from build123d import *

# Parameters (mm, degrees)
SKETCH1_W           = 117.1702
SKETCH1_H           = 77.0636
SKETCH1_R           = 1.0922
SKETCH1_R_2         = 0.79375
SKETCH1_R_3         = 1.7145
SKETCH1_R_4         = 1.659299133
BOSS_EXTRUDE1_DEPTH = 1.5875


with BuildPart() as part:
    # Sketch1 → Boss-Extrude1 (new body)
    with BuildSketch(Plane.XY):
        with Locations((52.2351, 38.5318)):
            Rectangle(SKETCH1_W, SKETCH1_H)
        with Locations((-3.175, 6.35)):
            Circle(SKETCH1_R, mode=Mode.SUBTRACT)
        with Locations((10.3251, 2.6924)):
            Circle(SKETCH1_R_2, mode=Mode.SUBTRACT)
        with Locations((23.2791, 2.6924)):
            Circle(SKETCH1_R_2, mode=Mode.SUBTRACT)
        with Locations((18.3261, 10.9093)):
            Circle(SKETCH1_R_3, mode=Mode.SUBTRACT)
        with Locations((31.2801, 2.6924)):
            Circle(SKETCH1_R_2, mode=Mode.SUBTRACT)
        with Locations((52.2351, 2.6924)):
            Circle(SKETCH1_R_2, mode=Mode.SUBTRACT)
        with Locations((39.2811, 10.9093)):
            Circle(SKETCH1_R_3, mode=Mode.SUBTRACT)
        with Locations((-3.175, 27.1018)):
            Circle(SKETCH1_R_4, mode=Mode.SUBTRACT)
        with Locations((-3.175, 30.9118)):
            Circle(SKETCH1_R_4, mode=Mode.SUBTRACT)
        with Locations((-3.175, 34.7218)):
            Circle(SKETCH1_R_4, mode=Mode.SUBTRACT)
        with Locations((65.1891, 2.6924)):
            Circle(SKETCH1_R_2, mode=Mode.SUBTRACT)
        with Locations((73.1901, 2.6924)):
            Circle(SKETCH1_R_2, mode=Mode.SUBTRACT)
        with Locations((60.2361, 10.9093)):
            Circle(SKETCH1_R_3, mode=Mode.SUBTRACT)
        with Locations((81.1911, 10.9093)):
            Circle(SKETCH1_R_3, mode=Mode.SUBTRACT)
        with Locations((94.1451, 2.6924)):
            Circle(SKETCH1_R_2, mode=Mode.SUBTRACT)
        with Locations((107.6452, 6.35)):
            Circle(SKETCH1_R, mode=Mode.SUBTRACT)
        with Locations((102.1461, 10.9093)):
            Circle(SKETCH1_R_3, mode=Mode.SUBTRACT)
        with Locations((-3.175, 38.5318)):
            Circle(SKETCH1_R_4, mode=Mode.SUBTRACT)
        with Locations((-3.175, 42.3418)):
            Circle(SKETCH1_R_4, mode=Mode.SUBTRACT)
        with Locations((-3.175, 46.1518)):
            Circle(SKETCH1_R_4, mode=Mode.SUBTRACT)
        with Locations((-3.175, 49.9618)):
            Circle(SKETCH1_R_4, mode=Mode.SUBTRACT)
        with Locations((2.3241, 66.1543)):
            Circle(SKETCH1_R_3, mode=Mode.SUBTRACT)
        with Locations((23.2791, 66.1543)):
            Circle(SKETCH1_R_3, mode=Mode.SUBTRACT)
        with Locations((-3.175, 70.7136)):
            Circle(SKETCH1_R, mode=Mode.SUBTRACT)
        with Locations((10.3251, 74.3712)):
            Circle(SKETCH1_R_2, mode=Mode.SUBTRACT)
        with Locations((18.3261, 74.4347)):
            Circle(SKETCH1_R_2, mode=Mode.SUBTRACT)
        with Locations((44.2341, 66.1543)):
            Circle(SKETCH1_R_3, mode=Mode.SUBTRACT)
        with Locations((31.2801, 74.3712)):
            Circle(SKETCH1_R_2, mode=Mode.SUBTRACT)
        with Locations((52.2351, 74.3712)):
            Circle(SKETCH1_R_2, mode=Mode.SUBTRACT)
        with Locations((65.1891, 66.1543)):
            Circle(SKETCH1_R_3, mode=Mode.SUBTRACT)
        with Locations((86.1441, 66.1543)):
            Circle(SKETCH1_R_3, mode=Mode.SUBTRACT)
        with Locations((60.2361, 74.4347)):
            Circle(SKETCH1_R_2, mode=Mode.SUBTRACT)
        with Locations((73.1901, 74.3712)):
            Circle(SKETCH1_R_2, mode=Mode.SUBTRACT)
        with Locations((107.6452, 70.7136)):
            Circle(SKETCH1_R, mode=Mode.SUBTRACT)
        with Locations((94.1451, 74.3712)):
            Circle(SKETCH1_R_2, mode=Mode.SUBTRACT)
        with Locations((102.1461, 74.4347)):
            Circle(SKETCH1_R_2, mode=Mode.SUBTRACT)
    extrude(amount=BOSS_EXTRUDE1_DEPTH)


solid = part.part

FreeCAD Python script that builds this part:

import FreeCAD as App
import Part
import Sketcher
from FreeCAD import Vector
Q = App.Units.Quantity


def add_polygon(sketch, points):
    """Adds a closed chain of lines whose ends are joined by coincident constraints."""
    first, n = sketch.GeometryCount, len(points)
    for a, b in zip(points, points[1:] + points[:1]):
        sketch.addGeometry(Part.LineSegment(App.Vector(*a, 0), App.Vector(*b, 0)), False)
    for i in range(n):
        sketch.addConstraint(Sketcher.Constraint("Coincident", first + i, 2, first + (i + 1) % n, 1))

doc = App.newDocument("Part")
body = doc.addObject("PartDesign::Body", "Body")

# Sketch on XY plane
sketch1 = body.newObject("Sketcher::SketchObject", "Sketch")
sketch1.AttachmentSupport = (doc.getObject("XY_Plane"), [""])
sketch1.MapMode = "FlatFace"
add_polygon(sketch1, [(-6.3, 77.1), (-6.3, 0), (110.8, 0), (110.8, 77.1)])  # lines 0-3
sketch1.addGeometry(Part.Circle(Vector(-3.2, 6.3, 0), Vector(0, 0, 1), 1.1), False)  # 4
sketch1.addGeometry(Part.Circle(Vector(10.3, 2.7, 0), Vector(0, 0, 1), 0.8), False)  # 5
sketch1.addGeometry(Part.Circle(Vector(23.3, 2.7, 0), Vector(0, 0, 1), 0.8), False)  # 6
sketch1.addGeometry(Part.Circle(Vector(18.3, 10.9, 0), Vector(0, 0, 1), 1.7), False)  # 7
sketch1.addGeometry(Part.Circle(Vector(31.3, 2.7, 0), Vector(0, 0, 1), 0.8), False)  # 8
sketch1.addGeometry(Part.Circle(Vector(39.3, 10.9, 0), Vector(0, 0, 1), 1.7), False)  # 9
sketch1.addGeometry(Part.Circle(Vector(-3.2, 27.1, 0), Vector(0, 0, 1), 1.7), False)  # 10
sketch1.addGeometry(Part.Circle(Vector(-3.2, 30.9, 0), Vector(0, 0, 1), 1.7), False)  # 11
sketch1.addGeometry(Part.Circle(Vector(-3.2, 34.7, 0), Vector(0, 0, 1), 1.7), False)  # 12
sketch1.addGeometry(Part.Circle(Vector(-3.2, 38.5, 0), Vector(0, 0, 1), 1.7), False)  # 13
sketch1.addGeometry(Part.Circle(Vector(52.2, 2.7, 0), Vector(0, 0, 1), 0.8), False)  # 14
sketch1.addGeometry(Part.Circle(Vector(65.2, 2.7, 0), Vector(0, 0, 1), 0.8), False)  # 15
sketch1.addGeometry(Part.Circle(Vector(60.2, 10.9, 0), Vector(0, 0, 1), 1.7), False)  # 16
sketch1.addGeometry(Part.Circle(Vector(73.2, 2.7, 0), Vector(0, 0, 1), 0.8), False)  # 17
sketch1.addGeometry(Part.Circle(Vector(94.1, 2.7, 0), Vector(0, 0, 1), 0.8), False)  # 18
sketch1.addGeometry(Part.Circle(Vector(81.2, 10.9, 0), Vector(0, 0, 1), 1.7), False)  # 19
sketch1.addGeometry(Part.Circle(Vector(107.6, 6.3, 0), Vector(0, 0, 1), 1.1), False)  # 20
sketch1.addGeometry(Part.Circle(Vector(102.1, 10.9, 0), Vector(0, 0, 1), 1.7), False)  # 21
sketch1.addGeometry(Part.Circle(Vector(-3.2, 42.3, 0), Vector(0, 0, 1), 1.7), False)  # 22
sketch1.addGeometry(Part.Circle(Vector(-3.2, 46.2, 0), Vector(0, 0, 1), 1.7), False)  # 23
sketch1.addGeometry(Part.Circle(Vector(-3.2, 50, 0), Vector(0, 0, 1), 1.7), False)  # 24
sketch1.addGeometry(Part.Circle(Vector(2.3, 66.2, 0), Vector(0, 0, 1), 1.7), False)  # 25
sketch1.addGeometry(Part.Circle(Vector(-3.2, 70.7, 0), Vector(0, 0, 1), 1.1), False)  # 26
sketch1.addGeometry(Part.Circle(Vector(23.3, 66.2, 0), Vector(0, 0, 1), 1.7), False)  # 27
sketch1.addGeometry(Part.Circle(Vector(10.3, 74.4, 0), Vector(0, 0, 1), 0.8), False)  # 28
sketch1.addGeometry(Part.Circle(Vector(18.3, 74.4, 0), Vector(0, 0, 1), 0.8), False)  # 29
sketch1.addGeometry(Part.Circle(Vector(31.3, 74.4, 0), Vector(0, 0, 1), 0.8), False)  # 30
sketch1.addGeometry(Part.Circle(Vector(44.2, 66.2, 0), Vector(0, 0, 1), 1.7), False)  # 31
sketch1.addGeometry(Part.Circle(Vector(65.2, 66.2, 0), Vector(0, 0, 1), 1.7), False)  # 32
sketch1.addGeometry(Part.Circle(Vector(52.2, 74.4, 0), Vector(0, 0, 1), 0.8), False)  # 33
sketch1.addGeometry(Part.Circle(Vector(60.2, 74.4, 0), Vector(0, 0, 1), 0.8), False)  # 34
sketch1.addGeometry(Part.Circle(Vector(73.2, 74.4, 0), Vector(0, 0, 1), 0.8), False)  # 35
sketch1.addGeometry(Part.Circle(Vector(86.1, 66.2, 0), Vector(0, 0, 1), 1.7), False)  # 36
sketch1.addGeometry(Part.Circle(Vector(94.1, 74.4, 0), Vector(0, 0, 1), 0.8), False)  # 37
sketch1.addGeometry(Part.Circle(Vector(107.6, 70.7, 0), Vector(0, 0, 1), 1.1), False)  # 38
sketch1.addGeometry(Part.Circle(Vector(102.1, 74.4, 0), Vector(0, 0, 1), 0.8), False)  # 39
sketch1.addConstraint([
    Sketcher.Constraint("Vertical", 0),
    Sketcher.Constraint("Horizontal", 1),
    Sketcher.Constraint("Vertical", 2),
    Sketcher.Constraint("Horizontal", 3),
    Sketcher.Constraint("Equal", 5, 6),
    Sketcher.Constraint("Equal", 6, 8),
    Sketcher.Constraint("Equal", 7, 9),
    Sketcher.Constraint("Equal", 10, 11),
    Sketcher.Constraint("Equal", 11, 12),
    Sketcher.Constraint("Equal", 12, 13),
    Sketcher.Constraint("Equal", 8, 14),
    Sketcher.Constraint("Equal", 14, 15),
    Sketcher.Constraint("Equal", 9, 16),
    Sketcher.Constraint("Equal", 15, 17),
    Sketcher.Constraint("Equal", 17, 18),
    Sketcher.Constraint("Equal", 16, 19),
    Sketcher.Constraint("Equal", 4, 20),
    Sketcher.Constraint("Equal", 19, 21),
    Sketcher.Constraint("Equal", 13, 22),
    Sketcher.Constraint("Equal", 22, 23),
    Sketcher.Constraint("Equal", 23, 24),
    Sketcher.Constraint("Equal", 21, 25),
    Sketcher.Constraint("Equal", 20, 26),
    Sketcher.Constraint("Equal", 25, 27),
    Sketcher.Constraint("Equal", 18, 28),
    Sketcher.Constraint("Equal", 28, 29),
    Sketcher.Constraint("Equal", 29, 30),
    Sketcher.Constraint("Equal", 27, 31),
    Sketcher.Constraint("Equal", 31, 32),
    Sketcher.Constraint("Equal", 30, 33),
    Sketcher.Constraint("Equal", 33, 34),
    Sketcher.Constraint("Equal", 34, 35),
    Sketcher.Constraint("Equal", 32, 36),
    Sketcher.Constraint("Equal", 35, 37),
    Sketcher.Constraint("Equal", 26, 38),
    Sketcher.Constraint("Equal", 37, 39),
    Sketcher.Constraint("PointOnObject", 0, 2, -1),
    Sketcher.Constraint("Horizontal", 5, 3, 6, 3),
    Sketcher.Constraint("Horizontal", 6, 3, 8, 3),
    Sketcher.Constraint("Horizontal", 7, 3, 9, 3),
    Sketcher.Constraint("Horizontal", 8, 3, 14, 3),
    Sketcher.Constraint("Horizontal", 14, 3, 15, 3),
    Sketcher.Constraint("Horizontal", 9, 3, 16, 3),
    Sketcher.Constraint("Horizontal", 15, 3, 17, 3),
    Sketcher.Constraint("Horizontal", 17, 3, 18, 3),
    Sketcher.Constraint("Horizontal", 16, 3, 19, 3),
    Sketcher.Constraint("Horizontal", 4, 3, 20, 3),
    Sketcher.Constraint("Horizontal", 19, 3, 21, 3),
    Sketcher.Constraint("Horizontal", 25, 3, 27, 3),
    Sketcher.Constraint("Horizontal", 28, 3, 30, 3),
    Sketcher.Constraint("Horizontal", 27, 3, 31, 3),
    Sketcher.Constraint("Horizontal", 31, 3, 32, 3),
    Sketcher.Constraint("Horizontal", 30, 3, 33, 3),
    Sketcher.Constraint("Horizontal", 29, 3, 34, 3),
    Sketcher.Constraint("Horizontal", 33, 3, 35, 3),
    Sketcher.Constraint("Horizontal", 32, 3, 36, 3),
    Sketcher.Constraint("Horizontal", 35, 3, 37, 3),
    Sketcher.Constraint("Horizontal", 26, 3, 38, 3),
    Sketcher.Constraint("Horizontal", 34, 3, 39, 3),
    Sketcher.Constraint("Vertical", 4, 3, 10, 3),
    Sketcher.Constraint("Vertical", 10, 3, 11, 3),
    Sketcher.Constraint("Vertical", 11, 3, 12, 3),
    Sketcher.Constraint("Vertical", 12, 3, 13, 3),
    Sketcher.Constraint("Vertical", 13, 3, 22, 3),
    Sketcher.Constraint("Vertical", 22, 3, 23, 3),
    Sketcher.Constraint("Vertical", 23, 3, 24, 3),
    Sketcher.Constraint("Vertical", 24, 3, 26, 3),
    Sketcher.Constraint("Vertical", 6, 3, 27, 3),
    Sketcher.Constraint("Vertical", 5, 3, 28, 3),
    Sketcher.Constraint("Vertical", 7, 3, 29, 3),
    Sketcher.Constraint("Vertical", 8, 3, 30, 3),
    Sketcher.Constraint("Vertical", 15, 3, 32, 3),
    Sketcher.Constraint("Vertical", 14, 3, 33, 3),
    Sketcher.Constraint("Vertical", 16, 3, 34, 3),
    Sketcher.Constraint("Vertical", 17, 3, 35, 3),
    Sketcher.Constraint("Vertical", 18, 3, 37, 3),
    Sketcher.Constraint("Vertical", 20, 3, 38, 3),
    Sketcher.Constraint("Vertical", 21, 3, 39, 3),
    Sketcher.Constraint("Diameter", 4, Q("0.086 in")),
    Sketcher.Constraint("Diameter", 5, Q("0.0625 in")),
    Sketcher.Constraint("Diameter", 7, Q("0.135 in")),
    Sketcher.Constraint("DistanceY", 10, 3, 12, 3, Q("0.3 in")),
    Sketcher.Constraint("DistanceY", 11, 3, 13, 3, Q("0.3 in")),
    Sketcher.Constraint("DistanceY", 12, 3, 22, 3, Q("0.3 in")),
    Sketcher.Constraint("DistanceY", 13, 3, 23, 3, Q("0.3 in")),
    Sketcher.Constraint("DistanceY", 22, 3, 24, 3, Q("0.3 in")),
    Sketcher.Constraint("Diameter", 10, Q("3.318598 mm")),
    Sketcher.Constraint("DistanceX", 1, 1, 1, 2, Q("4.613 in")),
    Sketcher.Constraint("DistanceY", 0, 2, 0, 1, Q("3.034 in")),
    Sketcher.Constraint("DistanceY", -1, 1, 4, 3, Q("0.25 in")),
    Sketcher.Constraint("DistanceX", 0, 2, -1, 1, Q("0.25 in")),
    Sketcher.Constraint("DistanceX", 5, 3, 6, 3, Q("0.51 in")),
    Sketcher.Constraint("DistanceX", 7, 3, 8, 3, Q("0.51 in")),
    Sketcher.Constraint("DistanceX", 6, 3, 9, 3, Q("0.63 in")),
    Sketcher.Constraint("DistanceY", 10, 3, 11, 3, Q("0.15 in")),
    Sketcher.Constraint("DistanceX", 9, 3, 14, 3, Q("0.51 in")),
    Sketcher.Constraint("DistanceX", 14, 3, 15, 3, Q("0.51 in")),
    Sketcher.Constraint("DistanceX", 8, 3, 16, 3, Q("1.14 in")),
    Sketcher.Constraint("DistanceX", 16, 3, 17, 3, Q("0.51 in")),
    Sketcher.Constraint("DistanceX", 15, 3, 18, 3, Q("1.14 in")),
    Sketcher.Constraint("DistanceX", 19, 3, 18, 3, Q("0.51 in")),
    Sketcher.Constraint("DistanceX", 17, 3, 21, 3, Q("1.14 in")),
    Sketcher.Constraint("DistanceX", 25, 3, 29, 3, Q("0.63 in")),
    Sketcher.Constraint("DistanceX", 30, 3, 31, 3, Q("0.51 in")),
    Sketcher.Constraint("DistanceX", 35, 3, 36, 3, Q("0.51 in")),
    Sketcher.Constraint("DistanceY", 38, 3, 2, 2, Q("0.25 in")),
    Sketcher.Constraint("DistanceX", 4, 3, -1, 1, Q("0.125 in")),
    Sketcher.Constraint("DistanceY", -1, 1, 5, 3, Q("0.106 in")),
    Sketcher.Constraint("DistanceY", -1, 1, 10, 3, Q("1.067 in")),
    Sketcher.Constraint("DistanceX", -1, 1, 20, 3, Q("4.238 in")),
    Sketcher.Constraint("DistanceY", -1, 1, 28, 3, Q("2.928 in")),
    Sketcher.Constraint("DistanceX", 7, 3, 6, 3, Q("0.195 in")),
    Sketcher.Constraint("DistanceY", 7, 3, 12, 3, Q("0.9375 in")),
    Sketcher.Constraint("DistanceY", 22, 3, 25, 3, Q("0.9375 in")),
    Sketcher.Constraint("DistanceY", 27, 3, 29, 3, Q("0.326 in")),
    Sketcher.Constraint("DistanceX", -1, 1, 5, 3, Q("0.4065 in")),
])
pad1 = body.newObject("PartDesign::Pad", "Pad")
pad1.Profile = sketch1
pad1.Length = Q("0.0625 in")

doc.recompute()
